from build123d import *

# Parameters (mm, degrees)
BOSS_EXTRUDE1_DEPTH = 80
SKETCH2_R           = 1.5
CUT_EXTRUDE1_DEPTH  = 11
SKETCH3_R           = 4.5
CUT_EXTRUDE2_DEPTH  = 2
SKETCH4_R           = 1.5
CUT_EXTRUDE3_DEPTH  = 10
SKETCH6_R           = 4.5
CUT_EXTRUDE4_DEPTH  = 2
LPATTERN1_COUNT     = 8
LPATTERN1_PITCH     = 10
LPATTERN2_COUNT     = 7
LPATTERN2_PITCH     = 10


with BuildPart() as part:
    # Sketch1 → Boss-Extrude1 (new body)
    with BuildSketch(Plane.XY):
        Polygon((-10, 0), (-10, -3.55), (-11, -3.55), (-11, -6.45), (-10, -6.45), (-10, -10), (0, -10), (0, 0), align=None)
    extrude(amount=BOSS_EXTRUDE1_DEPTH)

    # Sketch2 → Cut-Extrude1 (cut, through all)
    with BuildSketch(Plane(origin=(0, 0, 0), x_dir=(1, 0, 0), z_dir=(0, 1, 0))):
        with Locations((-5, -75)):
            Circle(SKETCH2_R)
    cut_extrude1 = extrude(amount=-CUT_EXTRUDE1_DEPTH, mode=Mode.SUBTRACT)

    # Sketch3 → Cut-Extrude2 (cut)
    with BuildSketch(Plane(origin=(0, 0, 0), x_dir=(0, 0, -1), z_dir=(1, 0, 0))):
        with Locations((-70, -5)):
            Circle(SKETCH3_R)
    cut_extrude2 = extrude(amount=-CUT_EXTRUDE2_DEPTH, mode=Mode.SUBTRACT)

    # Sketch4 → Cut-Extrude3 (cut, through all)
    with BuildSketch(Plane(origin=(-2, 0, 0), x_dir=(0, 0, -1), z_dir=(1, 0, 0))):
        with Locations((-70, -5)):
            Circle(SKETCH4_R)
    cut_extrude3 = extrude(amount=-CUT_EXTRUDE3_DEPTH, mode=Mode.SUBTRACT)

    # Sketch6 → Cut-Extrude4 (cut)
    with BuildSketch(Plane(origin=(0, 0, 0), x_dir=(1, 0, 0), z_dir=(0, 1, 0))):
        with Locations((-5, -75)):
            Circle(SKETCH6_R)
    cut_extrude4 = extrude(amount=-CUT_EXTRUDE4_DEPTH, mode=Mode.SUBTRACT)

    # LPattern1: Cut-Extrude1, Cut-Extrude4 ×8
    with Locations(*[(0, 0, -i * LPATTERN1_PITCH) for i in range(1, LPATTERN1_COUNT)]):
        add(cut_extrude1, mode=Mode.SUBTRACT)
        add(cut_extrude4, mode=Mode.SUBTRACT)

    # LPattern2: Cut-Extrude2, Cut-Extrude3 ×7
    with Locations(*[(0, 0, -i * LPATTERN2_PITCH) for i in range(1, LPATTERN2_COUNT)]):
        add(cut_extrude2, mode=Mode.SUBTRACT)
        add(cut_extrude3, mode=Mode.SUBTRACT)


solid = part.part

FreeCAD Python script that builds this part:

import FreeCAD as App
import Part
import Sketcher
Q = App.Units.Quantity


def add_polygon(sketch, points):
    """Adds a closed chain of lines whose ends are joined by coincident constraints."""
    first, n = sketch.GeometryCount, len(points)
    for a, b in zip(points, points[1:] + points[:1]):
        sketch.addGeometry(Part.LineSegment(App.Vector(*a, 0), App.Vector(*b, 0)), False)
    for i in range(n):
        sketch.addConstraint(Sketcher.Constraint("Coincident", first + i, 2, first + (i + 1) % n, 1))

doc = App.newDocument("Part")
params = doc.addObject("Spreadsheet::Sheet", "Params")
for row, (alias, value) in enumerate([
    ("sketch1_width", "1 mm"),
    ("sketch1_width2", "10 mm"),
    ("sketch1_height", "2.9 mm"),
    ("pad1_length", "80 mm"),
    ("sketch2_diameter", "3 mm"),
    ("sketch3_diameter", "9 mm"),
    ("pocket2_length", "2 mm"),
    ("sketch4_diameter", "3 mm"),
    ("sketch5_diameter", "9 mm"),
    ("pocket4_length", "2 mm"),
    ("linearpattern_pitch", "10 mm"),
    ("linearpattern2_pitch", "10 mm"),
], start=1):
    params.set(f"A{row}", alias)
    params.set(f"B{row}", "=" + value)
    params.setAlias(f"B{row}", alias)

body = doc.addObject("PartDesign::Body", "Body")

# Sketch on XY plane
sketch1 = body.newObject("Sketcher::SketchObject", "Sketch")
sketch1.AttachmentSupport = (doc.getObject("XY_Plane"), [""])
sketch1.MapMode = "FlatFace"
add_polygon(sketch1, [(-10, 0), (-10, -3.5), (-11, -3.5), (-11, -6.5), (-10, -6.5), (-10, -10), (0, -10), (0, 0)])  # lines 0-7
sketch1.addConstraint([
    Sketcher.Constraint("Vertical", 0),
    Sketcher.Constraint("Horizontal", 1),
    Sketcher.Constraint("Vertical", 2),
    Sketcher.Constraint("Horizontal", 3),
    Sketcher.Constraint("Vertical", 4),
    Sketcher.Constraint("Horizontal", 5),
    Sketcher.Constraint("Vertical", 6),
    Sketcher.Constraint("Horizontal", 7),
    Sketcher.Constraint("Coincident", 6, 2, -1, 1),
    Sketcher.Constraint("Vertical", 0, 2, 3, 2),
    Sketcher.Constraint("Equal", 0, 4),
    Sketcher.Constraint("Equal", 7, 6),
    Sketcher.Constraint("DistanceX", 1, 2, 1, 1, Q("1 mm")),
    Sketcher.Constraint("DistanceX", 5, 1, 5, 2, Q("10 mm")),
    Sketcher.Constraint("DistanceY", 2, 2, 2, 1, Q("2.9 mm")),
])
sketch1.setExpression("Constraints[20]", "Params.sketch1_width")
sketch1.setExpression("Constraints[21]", "Params.sketch1_width2")
sketch1.setExpression("Constraints[22]", "Params.sketch1_height")
pad1 = body.newObject("PartDesign::Pad", "Pad")
pad1.Profile = sketch1
pad1.setExpression("Length", "Params.pad1_length")

# Sketch on XZ plane
sketch2 = body.newObject("Sketcher::SketchObject", "Sketch001")
sketch2.AttachmentSupport = (doc.getObject("XZ_Plane"), [""])
sketch2.MapMode = "FlatFace"
sketch2.addGeometry(Part.Circle(App.Vector(-5, 75, 0), App.Vector(0, 0, 1), 1.5), False)
sketch2.addConstraint([
    Sketcher.Constraint("Diameter", 0, Q("3 mm")),
    Sketcher.Constraint("DistanceX", 0, 3, -1, 1, Q("5 mm")),
    Sketcher.Constraint("DistanceY", -1, 1, 0, 3, Q("75 mm")),
])
sketch2.setExpression("Constraints[0]", "Params.sketch2_diameter")
pocket1 = body.newObject("PartDesign::Pocket", "Pocket")
pocket1.Profile = sketch2
pocket1.Type = "ThroughAll"
pocket1.Reversed = True

# Sketch on YZ plane
sketch3 = body.newObject("Sketcher::SketchObject", "Sketch002")
sketch3.AttachmentSupport = (doc.getObject("YZ_Plane"), [""])
sketch3.MapMode = "FlatFace"
sketch3.addGeometry(Part.Circle(App.Vector(-5, 70, 0), App.Vector(0, 0, 1), 4.5), False)
sketch3.addConstraint([
    Sketcher.Constraint("Diameter", 0, Q("9 mm")),
    Sketcher.Constraint("DistanceX", 0, 3, -1, 1, Q("5 mm")),
    Sketcher.Constraint("DistanceY", -1, 1, 0, 3, Q("70 mm")),
])
sketch3.setExpression("Constraints[0]", "Params.sketch3_diameter")
pocket2 = body.newObject("PartDesign::Pocket", "Pocket001")
pocket2.Profile = sketch3
pocket2.setExpression("Length", "Params.pocket2_length")

# Sketch on YZ plane
sketch4 = body.newObject("Sketcher::SketchObject", "Sketch003")
sketch4.AttachmentSupport = (doc.getObject("YZ_Plane"), [""])
sketch4.MapMode = "FlatFace"
sketch4.AttachmentOffset = App.Placement(App.Vector(0, 0, -2), App.Rotation())
sketch4.addGeometry(Part.Circle(App.Vector(-5, 70, 0), App.Vector(0, 0, 1), 1.5), False)
sketch4.addConstraint([
    Sketcher.Constraint("Diameter", 0, Q("3 mm")),
    Sketcher.Constraint("DistanceX", 0, 3, -1, 1, Q("5 mm")),
    Sketcher.Constraint("DistanceY", -1, 1, 0, 3, Q("70 mm")),
])
sketch4.setExpression("Constraints[0]", "Params.sketch4_diameter")
pocket3 = body.newObject("PartDesign::Pocket", "Pocket002")
pocket3.Profile = sketch4
pocket3.Type = "ThroughAll"

# Sketch on XZ plane
sketch5 = body.newObject("Sketcher::SketchObject", "Sketch004")
sketch5.AttachmentSupport = (doc.getObject("XZ_Plane"), [""])
sketch5.MapMode = "FlatFace"
sketch5.addGeometry(Part.Circle(App.Vector(-5, 75, 0), App.Vector(0, 0, 1), 4.5), False)
sketch5.addConstraint([
    Sketcher.Constraint("Diameter", 0, Q("9 mm")),
    Sketcher.Constraint("DistanceX", 0, 3, -1, 1, Q("5 mm")),
    Sketcher.Constraint("DistanceY", -1, 1, 0, 3, Q("75 mm")),
])
sketch5.setExpression("Constraints[0]", "Params.sketch5_diameter")
pocket4 = body.newObject("PartDesign::Pocket", "Pocket003")
pocket4.Profile = sketch5
pocket4.setExpression("Length", "Params.pocket4_length")
pocket4.Reversed = True
doc.recompute()

linearpattern = body.newObject("PartDesign::LinearPattern", "LinearPattern")
linearpattern.Originals = [pocket1, pocket4]
linearpattern.Direction = (doc.getObject("Z_Axis"), [""])
linearpattern.Mode = "offset"
linearpattern.setExpression("Offset", "Params.linearpattern_pitch")
linearpattern.Occurrences = 8
linearpattern.Reversed = True
body.Tip = linearpattern
doc.recompute()

linearpattern2 = body.newObject("PartDesign::LinearPattern", "LinearPattern001")
linearpattern2.Originals = [pocket2, pocket3]
linearpattern2.Direction = (doc.getObject("Z_Axis"), [""])
linearpattern2.Mode = "offset"
linearpattern2.setExpression("Offset", "Params.linearpattern2_pitch")
linearpattern2.Occurrences = 7
linearpattern2.Reversed = True
body.Tip = linearpattern2

doc.recompute()
